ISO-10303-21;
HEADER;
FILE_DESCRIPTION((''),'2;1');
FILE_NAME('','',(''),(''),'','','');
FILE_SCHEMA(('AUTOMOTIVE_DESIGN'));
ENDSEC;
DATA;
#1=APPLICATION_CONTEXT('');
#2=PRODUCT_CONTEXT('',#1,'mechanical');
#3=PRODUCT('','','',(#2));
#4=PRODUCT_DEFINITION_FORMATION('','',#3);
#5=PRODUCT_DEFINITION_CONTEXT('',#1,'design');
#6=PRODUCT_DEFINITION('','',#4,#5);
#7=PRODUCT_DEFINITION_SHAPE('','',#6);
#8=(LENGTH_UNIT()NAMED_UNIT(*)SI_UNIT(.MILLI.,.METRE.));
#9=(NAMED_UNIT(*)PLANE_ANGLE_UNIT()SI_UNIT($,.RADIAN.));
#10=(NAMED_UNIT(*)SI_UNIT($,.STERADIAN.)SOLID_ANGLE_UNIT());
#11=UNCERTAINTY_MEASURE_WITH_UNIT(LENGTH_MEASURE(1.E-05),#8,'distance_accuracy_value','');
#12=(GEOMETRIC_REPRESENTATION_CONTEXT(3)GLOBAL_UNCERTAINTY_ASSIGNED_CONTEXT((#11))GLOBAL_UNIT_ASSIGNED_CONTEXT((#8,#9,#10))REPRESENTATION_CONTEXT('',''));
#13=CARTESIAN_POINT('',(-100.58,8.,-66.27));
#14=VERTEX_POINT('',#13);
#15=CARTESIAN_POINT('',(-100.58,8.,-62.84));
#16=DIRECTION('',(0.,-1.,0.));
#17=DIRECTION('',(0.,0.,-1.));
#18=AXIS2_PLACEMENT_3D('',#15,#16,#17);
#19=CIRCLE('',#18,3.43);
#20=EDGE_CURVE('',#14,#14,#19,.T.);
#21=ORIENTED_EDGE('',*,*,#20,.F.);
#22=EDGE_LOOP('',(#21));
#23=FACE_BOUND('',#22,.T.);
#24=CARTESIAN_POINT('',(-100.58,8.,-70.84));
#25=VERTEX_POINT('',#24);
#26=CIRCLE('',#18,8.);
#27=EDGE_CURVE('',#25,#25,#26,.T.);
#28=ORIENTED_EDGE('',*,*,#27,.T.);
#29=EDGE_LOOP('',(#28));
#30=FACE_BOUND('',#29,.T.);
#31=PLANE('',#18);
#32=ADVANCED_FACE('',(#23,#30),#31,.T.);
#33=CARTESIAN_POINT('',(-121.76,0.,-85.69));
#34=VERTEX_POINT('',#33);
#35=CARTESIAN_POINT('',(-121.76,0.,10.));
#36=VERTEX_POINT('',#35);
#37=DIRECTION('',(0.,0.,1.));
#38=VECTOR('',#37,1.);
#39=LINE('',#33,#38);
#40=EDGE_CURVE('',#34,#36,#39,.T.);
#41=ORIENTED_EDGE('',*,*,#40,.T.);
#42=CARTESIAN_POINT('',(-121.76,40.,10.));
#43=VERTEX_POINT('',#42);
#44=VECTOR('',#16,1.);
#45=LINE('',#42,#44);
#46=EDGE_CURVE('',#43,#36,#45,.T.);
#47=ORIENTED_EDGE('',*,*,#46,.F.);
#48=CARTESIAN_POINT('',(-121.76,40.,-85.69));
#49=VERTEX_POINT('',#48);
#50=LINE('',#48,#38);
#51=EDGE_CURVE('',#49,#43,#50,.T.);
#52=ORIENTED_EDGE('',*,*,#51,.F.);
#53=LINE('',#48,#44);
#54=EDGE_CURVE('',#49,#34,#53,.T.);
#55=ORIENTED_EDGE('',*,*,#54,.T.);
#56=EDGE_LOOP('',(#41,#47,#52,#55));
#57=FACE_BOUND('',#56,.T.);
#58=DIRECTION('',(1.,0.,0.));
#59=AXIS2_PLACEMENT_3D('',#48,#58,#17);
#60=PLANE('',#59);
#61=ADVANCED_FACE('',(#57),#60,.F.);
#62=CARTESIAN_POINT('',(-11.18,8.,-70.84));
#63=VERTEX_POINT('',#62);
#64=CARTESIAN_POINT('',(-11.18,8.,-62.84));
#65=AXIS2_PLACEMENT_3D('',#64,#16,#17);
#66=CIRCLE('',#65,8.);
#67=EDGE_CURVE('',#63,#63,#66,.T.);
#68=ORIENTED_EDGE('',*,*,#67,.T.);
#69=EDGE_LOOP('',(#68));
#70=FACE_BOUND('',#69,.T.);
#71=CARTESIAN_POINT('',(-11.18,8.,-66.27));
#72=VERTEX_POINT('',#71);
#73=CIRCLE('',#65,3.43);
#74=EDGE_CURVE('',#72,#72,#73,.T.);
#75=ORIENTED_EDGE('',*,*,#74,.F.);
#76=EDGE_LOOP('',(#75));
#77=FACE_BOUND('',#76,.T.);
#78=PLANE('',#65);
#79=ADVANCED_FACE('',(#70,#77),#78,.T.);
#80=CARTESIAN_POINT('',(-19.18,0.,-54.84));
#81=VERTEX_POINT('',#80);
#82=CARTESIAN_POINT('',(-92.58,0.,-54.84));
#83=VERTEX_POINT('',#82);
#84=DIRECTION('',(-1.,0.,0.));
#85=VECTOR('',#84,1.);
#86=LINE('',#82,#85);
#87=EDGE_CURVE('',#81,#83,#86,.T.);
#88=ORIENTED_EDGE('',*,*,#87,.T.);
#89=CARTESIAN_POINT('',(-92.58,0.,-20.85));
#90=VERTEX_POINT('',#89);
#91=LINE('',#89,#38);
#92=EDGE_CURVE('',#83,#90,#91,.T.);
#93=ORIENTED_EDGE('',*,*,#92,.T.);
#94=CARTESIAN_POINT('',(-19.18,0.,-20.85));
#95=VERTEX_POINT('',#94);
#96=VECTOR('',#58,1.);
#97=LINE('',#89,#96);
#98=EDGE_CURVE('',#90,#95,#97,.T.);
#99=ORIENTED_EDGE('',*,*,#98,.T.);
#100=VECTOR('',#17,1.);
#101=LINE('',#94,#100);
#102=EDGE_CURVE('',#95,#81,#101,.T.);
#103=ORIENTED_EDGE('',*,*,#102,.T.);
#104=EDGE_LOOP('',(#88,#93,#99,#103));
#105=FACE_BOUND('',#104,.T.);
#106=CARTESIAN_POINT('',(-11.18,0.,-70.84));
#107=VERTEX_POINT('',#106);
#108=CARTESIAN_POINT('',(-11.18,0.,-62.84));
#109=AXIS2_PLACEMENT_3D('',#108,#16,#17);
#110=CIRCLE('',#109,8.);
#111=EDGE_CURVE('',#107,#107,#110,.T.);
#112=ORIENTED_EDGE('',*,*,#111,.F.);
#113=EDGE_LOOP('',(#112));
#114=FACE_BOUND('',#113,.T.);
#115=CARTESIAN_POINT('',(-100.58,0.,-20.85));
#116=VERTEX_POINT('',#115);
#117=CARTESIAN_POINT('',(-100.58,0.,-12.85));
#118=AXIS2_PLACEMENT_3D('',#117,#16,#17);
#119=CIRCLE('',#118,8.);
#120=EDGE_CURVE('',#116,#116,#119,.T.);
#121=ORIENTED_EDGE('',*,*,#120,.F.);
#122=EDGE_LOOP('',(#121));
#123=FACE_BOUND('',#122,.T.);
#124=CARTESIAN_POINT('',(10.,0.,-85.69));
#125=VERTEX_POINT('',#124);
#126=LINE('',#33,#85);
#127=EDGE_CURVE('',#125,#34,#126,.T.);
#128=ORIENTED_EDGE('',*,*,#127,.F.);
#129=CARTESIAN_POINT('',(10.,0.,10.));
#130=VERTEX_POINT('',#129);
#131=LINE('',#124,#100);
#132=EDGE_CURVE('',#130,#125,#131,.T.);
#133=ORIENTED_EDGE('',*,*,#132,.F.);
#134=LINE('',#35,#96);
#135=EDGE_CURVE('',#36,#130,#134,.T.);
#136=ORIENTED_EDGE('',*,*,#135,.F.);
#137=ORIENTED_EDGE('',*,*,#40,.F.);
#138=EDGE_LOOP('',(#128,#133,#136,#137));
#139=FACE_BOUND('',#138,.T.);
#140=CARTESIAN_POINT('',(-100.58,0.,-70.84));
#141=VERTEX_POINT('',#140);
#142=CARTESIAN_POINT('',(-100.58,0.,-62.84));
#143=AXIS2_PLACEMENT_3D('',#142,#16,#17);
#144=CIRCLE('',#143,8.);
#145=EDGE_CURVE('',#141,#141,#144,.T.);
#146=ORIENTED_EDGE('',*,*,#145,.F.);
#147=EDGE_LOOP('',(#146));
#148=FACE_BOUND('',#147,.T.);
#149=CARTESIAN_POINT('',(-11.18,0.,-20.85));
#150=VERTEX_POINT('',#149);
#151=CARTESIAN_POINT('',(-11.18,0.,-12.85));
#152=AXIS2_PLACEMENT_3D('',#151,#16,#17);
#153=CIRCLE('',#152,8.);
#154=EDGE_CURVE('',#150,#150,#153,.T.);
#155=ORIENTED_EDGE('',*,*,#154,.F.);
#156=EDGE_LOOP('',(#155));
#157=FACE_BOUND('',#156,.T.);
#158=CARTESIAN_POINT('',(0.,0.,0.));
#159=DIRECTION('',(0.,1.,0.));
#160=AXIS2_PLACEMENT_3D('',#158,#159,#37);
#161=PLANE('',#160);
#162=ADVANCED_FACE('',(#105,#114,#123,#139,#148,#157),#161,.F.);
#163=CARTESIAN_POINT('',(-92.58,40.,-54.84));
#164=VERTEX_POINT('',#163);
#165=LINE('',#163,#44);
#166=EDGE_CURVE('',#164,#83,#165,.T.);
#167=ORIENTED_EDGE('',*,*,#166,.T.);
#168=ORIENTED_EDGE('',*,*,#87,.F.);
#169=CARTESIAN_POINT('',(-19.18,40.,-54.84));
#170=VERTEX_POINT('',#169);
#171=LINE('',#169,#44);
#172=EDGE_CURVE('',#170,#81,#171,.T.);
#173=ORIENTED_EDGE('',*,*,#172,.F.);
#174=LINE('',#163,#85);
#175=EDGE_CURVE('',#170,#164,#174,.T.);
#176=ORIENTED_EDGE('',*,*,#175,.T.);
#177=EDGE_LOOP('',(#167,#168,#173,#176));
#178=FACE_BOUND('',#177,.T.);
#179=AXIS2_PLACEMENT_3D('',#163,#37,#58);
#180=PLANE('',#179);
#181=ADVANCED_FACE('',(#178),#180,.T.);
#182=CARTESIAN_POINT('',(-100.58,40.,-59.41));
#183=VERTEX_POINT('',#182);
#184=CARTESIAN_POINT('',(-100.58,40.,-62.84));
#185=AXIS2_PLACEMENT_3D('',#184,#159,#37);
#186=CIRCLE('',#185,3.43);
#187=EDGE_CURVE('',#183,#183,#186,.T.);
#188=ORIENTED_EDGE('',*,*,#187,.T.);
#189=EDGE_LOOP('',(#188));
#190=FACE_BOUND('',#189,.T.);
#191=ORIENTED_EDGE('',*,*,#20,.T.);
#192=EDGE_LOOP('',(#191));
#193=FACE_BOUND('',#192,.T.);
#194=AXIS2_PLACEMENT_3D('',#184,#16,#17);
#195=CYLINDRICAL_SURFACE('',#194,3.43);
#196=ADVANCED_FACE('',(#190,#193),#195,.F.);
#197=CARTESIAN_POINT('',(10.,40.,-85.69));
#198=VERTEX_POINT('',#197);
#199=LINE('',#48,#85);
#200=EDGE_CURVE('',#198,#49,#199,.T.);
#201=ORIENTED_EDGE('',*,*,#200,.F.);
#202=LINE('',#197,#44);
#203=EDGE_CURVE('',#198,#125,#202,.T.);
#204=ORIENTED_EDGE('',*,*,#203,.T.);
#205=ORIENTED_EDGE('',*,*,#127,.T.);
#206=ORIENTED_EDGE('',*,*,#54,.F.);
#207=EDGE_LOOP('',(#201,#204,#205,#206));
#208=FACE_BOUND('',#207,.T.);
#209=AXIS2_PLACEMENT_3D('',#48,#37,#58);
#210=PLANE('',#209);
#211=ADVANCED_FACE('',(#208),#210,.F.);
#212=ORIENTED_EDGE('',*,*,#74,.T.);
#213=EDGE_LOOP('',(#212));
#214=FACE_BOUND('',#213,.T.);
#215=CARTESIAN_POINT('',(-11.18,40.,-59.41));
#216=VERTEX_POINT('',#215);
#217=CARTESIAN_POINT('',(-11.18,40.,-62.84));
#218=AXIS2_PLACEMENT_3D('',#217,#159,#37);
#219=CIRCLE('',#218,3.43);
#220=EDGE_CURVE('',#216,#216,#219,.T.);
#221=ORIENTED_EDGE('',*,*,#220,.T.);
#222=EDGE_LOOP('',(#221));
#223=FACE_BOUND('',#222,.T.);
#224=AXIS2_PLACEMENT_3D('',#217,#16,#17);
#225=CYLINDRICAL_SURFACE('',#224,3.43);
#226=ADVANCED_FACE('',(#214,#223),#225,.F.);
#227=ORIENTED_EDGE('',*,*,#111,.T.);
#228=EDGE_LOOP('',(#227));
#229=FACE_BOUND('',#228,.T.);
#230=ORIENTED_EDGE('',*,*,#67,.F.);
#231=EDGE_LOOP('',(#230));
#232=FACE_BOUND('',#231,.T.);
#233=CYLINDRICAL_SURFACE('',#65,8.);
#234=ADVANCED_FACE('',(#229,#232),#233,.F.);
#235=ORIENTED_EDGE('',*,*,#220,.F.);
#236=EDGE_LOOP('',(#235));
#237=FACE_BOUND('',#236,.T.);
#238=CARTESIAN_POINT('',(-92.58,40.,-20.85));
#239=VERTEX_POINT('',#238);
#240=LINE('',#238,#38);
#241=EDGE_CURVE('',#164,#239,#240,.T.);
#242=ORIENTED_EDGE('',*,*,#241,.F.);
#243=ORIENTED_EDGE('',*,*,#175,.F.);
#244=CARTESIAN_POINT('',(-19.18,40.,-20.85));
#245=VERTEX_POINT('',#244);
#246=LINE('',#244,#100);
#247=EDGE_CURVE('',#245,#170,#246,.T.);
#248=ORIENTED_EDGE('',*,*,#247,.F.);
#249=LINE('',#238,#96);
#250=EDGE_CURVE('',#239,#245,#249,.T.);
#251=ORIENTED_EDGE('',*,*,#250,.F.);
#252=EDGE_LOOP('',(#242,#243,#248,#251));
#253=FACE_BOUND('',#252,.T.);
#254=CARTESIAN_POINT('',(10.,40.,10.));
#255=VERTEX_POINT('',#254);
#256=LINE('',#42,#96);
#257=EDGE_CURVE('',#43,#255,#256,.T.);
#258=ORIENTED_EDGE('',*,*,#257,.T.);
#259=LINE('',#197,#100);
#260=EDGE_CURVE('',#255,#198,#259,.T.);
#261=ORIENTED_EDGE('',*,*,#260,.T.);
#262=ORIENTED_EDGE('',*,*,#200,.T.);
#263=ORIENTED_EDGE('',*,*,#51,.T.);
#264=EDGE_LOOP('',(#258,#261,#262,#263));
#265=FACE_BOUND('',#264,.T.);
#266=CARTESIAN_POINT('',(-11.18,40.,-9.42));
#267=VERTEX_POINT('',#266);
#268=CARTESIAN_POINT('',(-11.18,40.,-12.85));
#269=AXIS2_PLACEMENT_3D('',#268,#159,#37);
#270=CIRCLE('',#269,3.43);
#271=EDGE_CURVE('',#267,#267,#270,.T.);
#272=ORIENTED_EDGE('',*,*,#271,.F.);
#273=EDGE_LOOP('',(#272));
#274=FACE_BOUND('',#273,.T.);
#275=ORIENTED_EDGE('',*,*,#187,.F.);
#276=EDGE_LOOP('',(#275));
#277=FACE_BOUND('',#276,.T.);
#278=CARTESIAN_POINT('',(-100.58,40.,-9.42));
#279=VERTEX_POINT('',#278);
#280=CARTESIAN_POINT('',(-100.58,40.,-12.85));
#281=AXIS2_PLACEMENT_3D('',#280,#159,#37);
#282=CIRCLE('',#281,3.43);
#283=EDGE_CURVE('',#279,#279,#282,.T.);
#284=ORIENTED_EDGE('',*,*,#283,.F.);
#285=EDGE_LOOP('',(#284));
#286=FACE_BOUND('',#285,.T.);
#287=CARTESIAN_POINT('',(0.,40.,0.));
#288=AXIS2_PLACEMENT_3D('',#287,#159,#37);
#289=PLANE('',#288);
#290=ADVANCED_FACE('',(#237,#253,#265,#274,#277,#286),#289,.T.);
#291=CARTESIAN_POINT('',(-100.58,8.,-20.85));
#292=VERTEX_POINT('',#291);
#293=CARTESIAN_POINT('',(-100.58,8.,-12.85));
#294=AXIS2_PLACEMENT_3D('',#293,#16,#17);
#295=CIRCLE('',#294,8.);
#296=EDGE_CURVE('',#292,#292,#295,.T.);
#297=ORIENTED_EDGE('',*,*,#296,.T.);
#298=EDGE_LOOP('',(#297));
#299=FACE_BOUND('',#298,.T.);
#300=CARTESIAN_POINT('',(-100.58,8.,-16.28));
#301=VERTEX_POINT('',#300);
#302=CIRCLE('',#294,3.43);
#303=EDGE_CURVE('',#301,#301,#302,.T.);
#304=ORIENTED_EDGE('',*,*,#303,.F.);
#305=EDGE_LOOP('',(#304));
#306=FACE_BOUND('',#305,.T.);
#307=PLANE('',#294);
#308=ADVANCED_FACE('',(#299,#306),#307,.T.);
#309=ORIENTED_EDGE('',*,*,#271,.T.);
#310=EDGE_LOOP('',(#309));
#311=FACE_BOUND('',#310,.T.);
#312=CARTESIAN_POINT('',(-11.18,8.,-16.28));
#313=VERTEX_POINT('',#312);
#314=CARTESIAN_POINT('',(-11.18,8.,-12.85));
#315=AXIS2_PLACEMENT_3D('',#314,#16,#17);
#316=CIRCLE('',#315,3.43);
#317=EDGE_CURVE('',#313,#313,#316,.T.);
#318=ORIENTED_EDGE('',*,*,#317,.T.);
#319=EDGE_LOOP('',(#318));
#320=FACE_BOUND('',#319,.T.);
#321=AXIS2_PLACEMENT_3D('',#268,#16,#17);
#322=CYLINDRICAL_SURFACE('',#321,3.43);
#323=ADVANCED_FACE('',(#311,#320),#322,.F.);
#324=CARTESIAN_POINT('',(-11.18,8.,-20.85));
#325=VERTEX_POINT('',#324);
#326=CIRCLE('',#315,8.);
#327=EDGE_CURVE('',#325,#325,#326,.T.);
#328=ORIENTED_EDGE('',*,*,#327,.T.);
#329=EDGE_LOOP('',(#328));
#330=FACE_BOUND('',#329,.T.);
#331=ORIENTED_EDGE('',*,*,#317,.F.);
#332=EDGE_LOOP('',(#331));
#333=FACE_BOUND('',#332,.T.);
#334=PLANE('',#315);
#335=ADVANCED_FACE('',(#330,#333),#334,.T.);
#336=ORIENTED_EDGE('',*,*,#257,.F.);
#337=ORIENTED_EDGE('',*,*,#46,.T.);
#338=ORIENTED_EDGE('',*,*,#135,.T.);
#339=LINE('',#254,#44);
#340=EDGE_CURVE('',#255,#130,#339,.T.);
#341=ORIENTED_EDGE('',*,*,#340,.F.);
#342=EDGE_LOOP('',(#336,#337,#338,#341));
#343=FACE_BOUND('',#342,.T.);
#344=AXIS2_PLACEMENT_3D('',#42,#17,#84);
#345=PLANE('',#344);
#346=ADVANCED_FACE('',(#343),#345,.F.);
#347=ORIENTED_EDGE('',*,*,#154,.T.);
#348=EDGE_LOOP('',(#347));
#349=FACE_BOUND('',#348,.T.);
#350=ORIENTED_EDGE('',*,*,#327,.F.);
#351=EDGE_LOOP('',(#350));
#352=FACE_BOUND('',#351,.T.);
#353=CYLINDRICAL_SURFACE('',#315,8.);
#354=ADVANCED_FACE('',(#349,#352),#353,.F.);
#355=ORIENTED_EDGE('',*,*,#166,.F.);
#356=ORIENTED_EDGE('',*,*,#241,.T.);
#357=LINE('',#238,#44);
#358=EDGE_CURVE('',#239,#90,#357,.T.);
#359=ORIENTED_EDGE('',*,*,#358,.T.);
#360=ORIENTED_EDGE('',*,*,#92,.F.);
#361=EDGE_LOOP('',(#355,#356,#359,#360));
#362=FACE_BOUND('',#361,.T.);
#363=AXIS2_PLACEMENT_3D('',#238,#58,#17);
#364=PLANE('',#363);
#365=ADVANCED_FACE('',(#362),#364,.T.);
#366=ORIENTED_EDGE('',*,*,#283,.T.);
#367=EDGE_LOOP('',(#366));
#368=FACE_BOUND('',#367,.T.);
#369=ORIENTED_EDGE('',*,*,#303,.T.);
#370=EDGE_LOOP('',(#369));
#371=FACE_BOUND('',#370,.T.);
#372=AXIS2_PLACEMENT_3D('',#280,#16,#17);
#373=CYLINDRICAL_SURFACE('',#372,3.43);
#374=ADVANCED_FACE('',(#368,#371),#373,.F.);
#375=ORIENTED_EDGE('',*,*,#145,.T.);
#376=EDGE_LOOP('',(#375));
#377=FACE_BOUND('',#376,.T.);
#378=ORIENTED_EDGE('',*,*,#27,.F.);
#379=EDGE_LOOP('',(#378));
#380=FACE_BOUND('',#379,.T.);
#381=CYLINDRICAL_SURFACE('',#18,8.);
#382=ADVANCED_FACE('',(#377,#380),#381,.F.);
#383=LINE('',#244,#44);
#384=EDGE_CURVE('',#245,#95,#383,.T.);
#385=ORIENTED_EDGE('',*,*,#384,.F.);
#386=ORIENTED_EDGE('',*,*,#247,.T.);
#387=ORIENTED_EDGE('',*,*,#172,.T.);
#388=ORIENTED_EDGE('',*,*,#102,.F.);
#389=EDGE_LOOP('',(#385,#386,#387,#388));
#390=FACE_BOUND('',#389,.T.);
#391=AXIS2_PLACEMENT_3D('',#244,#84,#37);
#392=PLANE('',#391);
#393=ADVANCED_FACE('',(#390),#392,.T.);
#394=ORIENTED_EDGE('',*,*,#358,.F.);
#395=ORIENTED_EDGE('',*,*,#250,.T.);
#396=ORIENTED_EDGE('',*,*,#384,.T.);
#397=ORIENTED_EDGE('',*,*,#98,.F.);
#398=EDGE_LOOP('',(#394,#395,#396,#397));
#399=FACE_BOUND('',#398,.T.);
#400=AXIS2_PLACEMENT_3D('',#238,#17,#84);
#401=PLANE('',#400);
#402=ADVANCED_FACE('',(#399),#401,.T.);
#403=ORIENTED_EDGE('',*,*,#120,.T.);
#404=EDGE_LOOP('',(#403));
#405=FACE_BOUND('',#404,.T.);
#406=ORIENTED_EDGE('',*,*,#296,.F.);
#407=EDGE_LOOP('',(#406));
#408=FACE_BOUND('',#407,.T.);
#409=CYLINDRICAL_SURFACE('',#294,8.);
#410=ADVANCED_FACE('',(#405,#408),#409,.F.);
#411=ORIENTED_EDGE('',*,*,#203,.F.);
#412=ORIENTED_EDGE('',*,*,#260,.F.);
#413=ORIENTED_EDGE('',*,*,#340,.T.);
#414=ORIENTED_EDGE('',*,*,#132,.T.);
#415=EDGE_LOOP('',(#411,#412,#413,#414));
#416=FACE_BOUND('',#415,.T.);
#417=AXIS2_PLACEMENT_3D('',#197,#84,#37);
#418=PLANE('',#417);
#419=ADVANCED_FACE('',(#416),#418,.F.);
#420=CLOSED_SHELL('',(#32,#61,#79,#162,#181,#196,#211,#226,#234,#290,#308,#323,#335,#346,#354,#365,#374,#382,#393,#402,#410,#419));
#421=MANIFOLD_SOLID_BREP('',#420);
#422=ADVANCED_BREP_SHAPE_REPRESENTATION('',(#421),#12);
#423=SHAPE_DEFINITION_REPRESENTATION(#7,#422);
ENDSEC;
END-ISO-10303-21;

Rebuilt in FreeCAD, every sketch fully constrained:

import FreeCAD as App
import Part
import Sketcher

V = App.Vector
Q = App.Units.Quantity

doc = App.newDocument("Part")
body = doc.addObject("PartDesign::Body", "Body")

sketch1 = body.newObject("Sketcher::SketchObject", "Sketch")
sketch1.AttachmentSupport = (doc.getObject("XZ_Plane"), [""])
sketch1.MapMode = "FlatFace"
sketch1.addGeometry([
    Part.LineSegment(V(-121.8, -85.7, 0), V(-121.8, 10, 0)),
    Part.LineSegment(V(-121.8, 10, 0), V(10, 10, 0)),
    Part.LineSegment(V(10, 10, 0), V(10, -85.7, 0)),
    Part.LineSegment(V(10, -85.7, 0), V(-121.8, -85.7, 0)),
    Part.Circle(V(-100.6, -12.8, 0), V(0, 0, 1), 3.4),
    Part.Circle(V(-11.2, -12.8, 0), V(0, 0, 1), 3.4),
    Part.LineSegment(V(-19.2, -20.9, 0), V(-92.6, -20.9, 0)),
    Part.LineSegment(V(-92.6, -20.9, 0), V(-92.6, -54.8, 0)),
    Part.LineSegment(V(-92.6, -54.8, 0), V(-19.2, -54.8, 0)),
    Part.LineSegment(V(-19.2, -54.8, 0), V(-19.2, -20.9, 0)),
    Part.Circle(V(-100.6, -62.8, 0), V(0, 0, 1), 3.4),
    Part.Circle(V(-11.2, -62.8, 0), V(0, 0, 1), 3.4),
], False)
sketch1.addConstraint([
    Sketcher.Constraint("Coincident", 0, 2, 1, 1),
    Sketcher.Constraint("Coincident", 1, 2, 2, 1),
    Sketcher.Constraint("Coincident", 2, 2, 3, 1),
    Sketcher.Constraint("Coincident", 3, 2, 0, 1),
    Sketcher.Constraint("Coincident", 6, 2, 7, 1),
    Sketcher.Constraint("Coincident", 7, 2, 8, 1),
    Sketcher.Constraint("Coincident", 8, 2, 9, 1),
    Sketcher.Constraint("Coincident", 9, 2, 6, 1),
    Sketcher.Constraint("Vertical", 0),
    Sketcher.Constraint("Horizontal", 1),
    Sketcher.Constraint("Vertical", 2),
    Sketcher.Constraint("Horizontal", 3),
    Sketcher.Constraint("Horizontal", 6),
    Sketcher.Constraint("Vertical", 7),
    Sketcher.Constraint("Horizontal", 8),
    Sketcher.Constraint("Vertical", 9),
    Sketcher.Constraint("Equal", 4, 5),
    Sketcher.Constraint("Equal", 5, 10),
    Sketcher.Constraint("Equal", 10, 11),
    Sketcher.Constraint("Horizontal", 4, 3, 5, 3),
    Sketcher.Constraint("Horizontal", 10, 3, 11, 3),
    Sketcher.Constraint("Vertical", 4, 3, 10, 3),
    Sketcher.Constraint("Vertical", 5, 3, 11, 3),
    Sketcher.Constraint("Diameter", 4, Q("6.86 mm")),
    Sketcher.Constraint("DistanceX", 6, 2, 6, 1, Q("73.4 mm")),
    Sketcher.Constraint("DistanceY", -1, 1, 0, 2, Q("10 mm")),
    Sketcher.Constraint("DistanceX", -1, 1, 1, 2, Q("10 mm")),
    Sketcher.Constraint("DistanceX", 4, 3, 6, 2, Q("8 mm")),
    Sketcher.Constraint("DistanceY", 6, 2, 4, 3, Q("8 mm")),
    Sketcher.Constraint("DistanceY", 10, 3, 7, 2, Q("8 mm")),
    Sketcher.Constraint("DistanceX", 8, 2, 11, 3, Q("8 mm")),
    Sketcher.Constraint("DistanceX", 1, 1, 1, 2, Q("131.76 mm")),
    Sketcher.Constraint("DistanceY", 0, 1, 0, 2, Q("95.69 mm")),
    Sketcher.Constraint("DistanceY", 7, 2, 7, 1, Q("33.99 mm")),
    Sketcher.Constraint("DistanceX", 4, 3, -1, 1, Q("100.58 mm")),
    Sketcher.Constraint("DistanceY", 4, 3, -1, 1, Q("12.85 mm")),
])
pad1 = body.newObject("PartDesign::Pad", "Pad")
pad1.Profile = sketch1
pad1.Length = 40
pad1.Reversed = True

sketch2 = body.newObject("Sketcher::SketchObject", "Sketch001")
sketch2.AttachmentSupport = (doc.getObject("XZ_Plane"), [""])
sketch2.MapMode = "FlatFace"
sketch2.addGeometry([
    Part.Circle(V(-101, -13, 0), V(0, 0, 1), 8),
    Part.Circle(V(-11, -13, 0), V(0, 0, 1), 8),
    Part.Circle(V(-11, -63, 0), V(0, 0, 1), 8),
    Part.Circle(V(-101, -63, 0), V(0, 0, 1), 8),
], False)
sketch2.addConstraint([
    Sketcher.Constraint("Equal", 0, 1),
    Sketcher.Constraint("Equal", 1, 2),
    Sketcher.Constraint("Equal", 2, 3),
    Sketcher.Constraint("Horizontal", 0, 3, 1, 3),
    Sketcher.Constraint("Horizontal", 2, 3, 3, 3),
    Sketcher.Constraint("Vertical", 1, 3, 2, 3),
    Sketcher.Constraint("Vertical", 0, 3, 3, 3),
    Sketcher.Constraint("Diameter", 0, Q("16 mm")),
    Sketcher.Constraint("DistanceX", 0, 3, 1, 3, Q("89.4 mm")),
    Sketcher.Constraint("DistanceX", 0, 3, -1, 1, Q("100.58 mm")),
    Sketcher.Constraint("DistanceY", 0, 3, -1, 1, Q("12.85 mm")),
    Sketcher.Constraint("DistanceY", 2, 3, -1, 1, Q("62.84 mm")),
])
pocket1 = body.newObject("PartDesign::Pocket", "Pocket")
pocket1.Profile = sketch2
pocket1.Length = 8

doc.recompute()
